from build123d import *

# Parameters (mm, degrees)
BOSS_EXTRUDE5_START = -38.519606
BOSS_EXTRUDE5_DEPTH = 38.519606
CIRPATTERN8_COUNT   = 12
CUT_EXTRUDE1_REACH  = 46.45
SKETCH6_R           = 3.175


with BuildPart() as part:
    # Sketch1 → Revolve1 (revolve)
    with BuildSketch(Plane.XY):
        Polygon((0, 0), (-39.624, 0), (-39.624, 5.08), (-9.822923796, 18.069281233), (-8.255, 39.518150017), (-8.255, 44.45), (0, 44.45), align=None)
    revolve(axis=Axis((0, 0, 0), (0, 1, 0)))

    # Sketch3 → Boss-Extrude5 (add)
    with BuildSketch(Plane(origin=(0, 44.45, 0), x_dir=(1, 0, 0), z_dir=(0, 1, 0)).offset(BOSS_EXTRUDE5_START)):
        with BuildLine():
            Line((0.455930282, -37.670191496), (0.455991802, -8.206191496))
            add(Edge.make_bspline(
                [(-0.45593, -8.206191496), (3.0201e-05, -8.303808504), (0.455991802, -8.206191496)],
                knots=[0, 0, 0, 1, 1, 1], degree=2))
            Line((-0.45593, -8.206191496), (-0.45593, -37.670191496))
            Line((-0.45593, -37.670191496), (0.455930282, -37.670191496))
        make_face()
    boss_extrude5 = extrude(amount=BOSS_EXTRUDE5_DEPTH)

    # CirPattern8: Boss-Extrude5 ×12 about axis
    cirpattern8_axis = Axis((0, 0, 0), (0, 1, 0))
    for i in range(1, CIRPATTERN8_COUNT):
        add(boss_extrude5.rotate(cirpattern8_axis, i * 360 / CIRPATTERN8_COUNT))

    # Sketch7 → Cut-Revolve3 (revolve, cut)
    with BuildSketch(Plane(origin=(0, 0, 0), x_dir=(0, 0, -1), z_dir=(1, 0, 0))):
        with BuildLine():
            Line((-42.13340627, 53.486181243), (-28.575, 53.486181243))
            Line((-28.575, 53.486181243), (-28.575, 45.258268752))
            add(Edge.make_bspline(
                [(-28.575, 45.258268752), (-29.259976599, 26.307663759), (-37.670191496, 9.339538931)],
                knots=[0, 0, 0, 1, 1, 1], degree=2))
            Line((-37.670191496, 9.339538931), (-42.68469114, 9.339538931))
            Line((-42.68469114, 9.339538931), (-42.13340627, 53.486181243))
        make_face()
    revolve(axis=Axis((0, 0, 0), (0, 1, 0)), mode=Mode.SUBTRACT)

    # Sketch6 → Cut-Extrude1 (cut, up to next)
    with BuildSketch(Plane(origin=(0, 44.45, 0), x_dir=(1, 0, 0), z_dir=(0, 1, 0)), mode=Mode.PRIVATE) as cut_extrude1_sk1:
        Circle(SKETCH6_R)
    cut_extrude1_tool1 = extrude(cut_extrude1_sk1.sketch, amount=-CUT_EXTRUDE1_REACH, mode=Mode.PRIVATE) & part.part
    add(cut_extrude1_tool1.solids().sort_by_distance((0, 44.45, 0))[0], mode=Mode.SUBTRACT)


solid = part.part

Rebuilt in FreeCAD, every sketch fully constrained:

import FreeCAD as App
import Part
import Sketcher
Q = App.Units.Quantity

doc = App.newDocument("Part")
body = doc.addObject("PartDesign::Body", "Body")

# Sketch on XY plane
sketch1 = body.newObject("Sketcher::SketchObject", "Sketch")
sketch1.AttachmentSupport = (doc.getObject("XY_Plane"), [""])
sketch1.MapMode = "FlatFace"
sketch1.addGeometry(Part.LineSegment(App.Vector(-39.624, 0, 0), App.Vector(0, 0, 0)), False)
sketch1.addGeometry(Part.LineSegment(App.Vector(0, 0, 0), App.Vector(0, 44.45, 0)), False)
sketch1.addGeometry(Part.LineSegment(App.Vector(0, 44.45, 0), App.Vector(-8.255, 44.45, 0)), False)
sketch1.addGeometry(Part.LineSegment(App.Vector(-8.255, 44.45, 0), App.Vector(-8.255, 39.51815, 0)), False)
sketch1.addGeometry(Part.LineSegment(App.Vector(-8.255, 39.51815, 0), App.Vector(-9.822924, 18.069281, 0)), False)
sketch1.addGeometry(Part.LineSegment(App.Vector(-9.822924, 18.069281, 0), App.Vector(-39.624, 5.08, 0)), False)
sketch1.addGeometry(Part.LineSegment(App.Vector(-39.624, 5.08, 0), App.Vector(-39.624, 0, 0)), False)
sketch1.addConstraint(Sketcher.Constraint("Coincident", 0, 2, 1, 1))
sketch1.addConstraint(Sketcher.Constraint("Coincident", 1, 2, 2, 1))
sketch1.addConstraint(Sketcher.Constraint("Coincident", 2, 2, 3, 1))
sketch1.addConstraint(Sketcher.Constraint("Coincident", 3, 2, 4, 1))
sketch1.addConstraint(Sketcher.Constraint("Coincident", 4, 2, 5, 1))
sketch1.addConstraint(Sketcher.Constraint("Coincident", 5, 2, 6, 1))
sketch1.addConstraint(Sketcher.Constraint("Coincident", 6, 2, 0, 1))
sketch1.addConstraint(Sketcher.Constraint("Horizontal", 0))
sketch1.addConstraint(Sketcher.Constraint("Vertical", 1))
sketch1.addConstraint(Sketcher.Constraint("Horizontal", 2))
sketch1.addConstraint(Sketcher.Constraint("Vertical", 3))
sketch1.addConstraint(Sketcher.Constraint("Vertical", 6))
sketch1.addConstraint(Sketcher.Constraint("Coincident", 0, 2, -1, 1))
sketch1.addConstraint(Sketcher.Constraint("DistanceY", 6, 2, 6, 1, Q("0.2 in")))
sketch1.addConstraint(Sketcher.Constraint("DistanceX", 0, 1, 0, 2, Q("1.56 in")))
sketch1.addConstraint(Sketcher.Constraint("DistanceY", 1, 1, 1, 2, Q("1.75 in")))
sketch1.addConstraint(Sketcher.Constraint("DistanceX", 2, 2, 2, 1, Q("0.325 in")))
sketch1.addConstraint(Sketcher.Constraint("Distance", 4, 21.5061))
sketch1.addConstraint(Sketcher.Constraint("DistanceY", 3, 2, 3, 1, 4.93185))
sketch1.addConstraint(Sketcher.Constraint("DistanceY", -1, 1, 4, 2, 18.069281))
revolution = body.newObject("PartDesign::Revolution", "Revolution")
revolution.Profile = sketch1
revolution.ReferenceAxis = (sketch1, ["V_Axis"])
revolution.Angle = 360

# Sketch on XZ plane
sketch2 = body.newObject("Sketcher::SketchObject", "Sketch001")
sketch2.AttachmentSupport = (doc.getObject("XZ_Plane"), [""])
sketch2.MapMode = "FlatFace"
sketch2.AttachmentOffset = App.Placement(App.Vector(0, 0, -5.930394), App.Rotation())
sketch2.addGeometry(Part.LineSegment(App.Vector(0.45593, 37.670191, 0), App.Vector(0.455992, 8.206191, 0)), False)
sketch2.addGeometry(Part.BSplineCurve([App.Vector(-0.45593, 8.206191, 0), App.Vector(0.00003, 8.303809, 0), App.Vector(0.455992, 8.206191, 0)], [3, 3], [0, 1], False, 2, [1, 1, 1], False), False)
sketch2.addGeometry(Part.LineSegment(App.Vector(-0.45593, 8.206191, 0), App.Vector(-0.45593, 37.670191, 0)), False)
sketch2.addGeometry(Part.LineSegment(App.Vector(-0.45593, 37.670191, 0), App.Vector(0.45593, 37.670191, 0)), False)
sketch2.addConstraint(Sketcher.Constraint("Block", 1))
sketch2.addConstraint(Sketcher.Constraint("Coincident", 0, 2, 1, 2))
sketch2.addConstraint(Sketcher.Constraint("Coincident", 1, 1, 2, 1))
sketch2.addConstraint(Sketcher.Constraint("Coincident", 2, 2, 3, 1))
sketch2.addConstraint(Sketcher.Constraint("Coincident", 3, 2, 0, 1))
sketch2.addConstraint(Sketcher.Constraint("Vertical", 2))
sketch2.addConstraint(Sketcher.Constraint("Horizontal", 3))
sketch2.addConstraint(Sketcher.Constraint("DistanceY", 2, 1, 2, 2, Q("1.16 in")))
sketch2.addConstraint(Sketcher.Constraint("DistanceX", 3, 1, 3, 2, Q("0.0359 in")))
pad1 = body.newObject("PartDesign::Pad", "Pad")
pad1.Profile = sketch2
pad1.Length = 38.519606
pad1.Reversed = True
doc.recompute()

polarpattern = body.newObject("PartDesign::PolarPattern", "PolarPattern")
polarpattern.Originals = [pad1]
polarpattern.Axis = (doc.getObject("Y_Axis"), [""])
polarpattern.Angle = 360
polarpattern.Occurrences = 12
body.Tip = polarpattern

# Sketch on YZ plane
sketch3 = body.newObject("Sketcher::SketchObject", "Sketch002")
sketch3.AttachmentSupport = (doc.getObject("YZ_Plane"), [""])
sketch3.MapMode = "FlatFace"
sketch3.addGeometry(Part.LineSegment(App.Vector(53.486181, 28.575, 0), App.Vector(53.486181, 42.133406, 0)), False)
sketch3.addGeometry(Part.LineSegment(App.Vector(53.486181, 42.133406, 0), App.Vector(9.339539, 42.684691, 0)), False)
sketch3.addGeometry(Part.LineSegment(App.Vector(9.339539, 42.684691, 0), App.Vector(9.339539, 37.670191, 0)), False)
sketch3.addGeometry(Part.BSplineCurve([App.Vector(45.258269, 28.575, 0), App.Vector(26.307664, 29.259977, 0), App.Vector(9.339539, 37.670191, 0)], [3, 3], [0, 1], False, 2, [1, 1, 1], False), False)
sketch3.addGeometry(Part.LineSegment(App.Vector(45.258269, 28.575, 0), App.Vector(53.486181, 28.575, 0)), False)
sketch3.addConstraint(Sketcher.Constraint("Block", 3))
sketch3.addConstraint(Sketcher.Constraint("Coincident", 0, 2, 1, 1))
sketch3.addConstraint(Sketcher.Constraint("Coincident", 1, 2, 2, 1))
sketch3.addConstraint(Sketcher.Constraint("Coincident", 2, 2, 3, 2))
sketch3.addConstraint(Sketcher.Constraint("Coincident", 3, 1, 4, 1))
sketch3.addConstraint(Sketcher.Constraint("Coincident", 4, 2, 0, 1))
sketch3.addConstraint(Sketcher.Constraint("Vertical", 0))
sketch3.addConstraint(Sketcher.Constraint("Vertical", 2))
sketch3.addConstraint(Sketcher.Constraint("Horizontal", 4))
sketch3.addConstraint(Sketcher.Constraint("DistanceY", 2, 2, 2, 1, 5.0145))
sketch3.addConstraint(Sketcher.Constraint("DistanceX", 4, 1, 4, 2, 8.227912))
sketch3.addConstraint(Sketcher.Constraint("DistanceY", 0, 1, 0, 2, 13.558406))
groove = body.newObject("PartDesign::Groove", "Groove")
groove.Profile = sketch3
groove.ReferenceAxis = (sketch3, ["H_Axis"])
groove.Angle = 360

# Sketch on XZ plane
sketch4 = body.newObject("Sketcher::SketchObject", "Sketch003")
sketch4.AttachmentSupport = (doc.getObject("XZ_Plane"), [""])
sketch4.MapMode = "FlatFace"
sketch4.AttachmentOffset = App.Placement(App.Vector(0, 0, -1.75 * 25.4), App.Rotation())
sketch4.addGeometry(Part.Circle(App.Vector(0, 0, 0), App.Vector(0, 0, 1), 3.175), False)
sketch4.addConstraint(Sketcher.Constraint("Coincident", 0, 3, -1, 1))
sketch4.addConstraint(Sketcher.Constraint("Diameter", 0, Q("0.25 in")))
pocket1 = body.newObject("PartDesign::Pocket", "Pocket")
pocket1.Profile = sketch4
pocket1.Type = "UpToFirst"
pocket1.Reversed = True

doc.recompute()
